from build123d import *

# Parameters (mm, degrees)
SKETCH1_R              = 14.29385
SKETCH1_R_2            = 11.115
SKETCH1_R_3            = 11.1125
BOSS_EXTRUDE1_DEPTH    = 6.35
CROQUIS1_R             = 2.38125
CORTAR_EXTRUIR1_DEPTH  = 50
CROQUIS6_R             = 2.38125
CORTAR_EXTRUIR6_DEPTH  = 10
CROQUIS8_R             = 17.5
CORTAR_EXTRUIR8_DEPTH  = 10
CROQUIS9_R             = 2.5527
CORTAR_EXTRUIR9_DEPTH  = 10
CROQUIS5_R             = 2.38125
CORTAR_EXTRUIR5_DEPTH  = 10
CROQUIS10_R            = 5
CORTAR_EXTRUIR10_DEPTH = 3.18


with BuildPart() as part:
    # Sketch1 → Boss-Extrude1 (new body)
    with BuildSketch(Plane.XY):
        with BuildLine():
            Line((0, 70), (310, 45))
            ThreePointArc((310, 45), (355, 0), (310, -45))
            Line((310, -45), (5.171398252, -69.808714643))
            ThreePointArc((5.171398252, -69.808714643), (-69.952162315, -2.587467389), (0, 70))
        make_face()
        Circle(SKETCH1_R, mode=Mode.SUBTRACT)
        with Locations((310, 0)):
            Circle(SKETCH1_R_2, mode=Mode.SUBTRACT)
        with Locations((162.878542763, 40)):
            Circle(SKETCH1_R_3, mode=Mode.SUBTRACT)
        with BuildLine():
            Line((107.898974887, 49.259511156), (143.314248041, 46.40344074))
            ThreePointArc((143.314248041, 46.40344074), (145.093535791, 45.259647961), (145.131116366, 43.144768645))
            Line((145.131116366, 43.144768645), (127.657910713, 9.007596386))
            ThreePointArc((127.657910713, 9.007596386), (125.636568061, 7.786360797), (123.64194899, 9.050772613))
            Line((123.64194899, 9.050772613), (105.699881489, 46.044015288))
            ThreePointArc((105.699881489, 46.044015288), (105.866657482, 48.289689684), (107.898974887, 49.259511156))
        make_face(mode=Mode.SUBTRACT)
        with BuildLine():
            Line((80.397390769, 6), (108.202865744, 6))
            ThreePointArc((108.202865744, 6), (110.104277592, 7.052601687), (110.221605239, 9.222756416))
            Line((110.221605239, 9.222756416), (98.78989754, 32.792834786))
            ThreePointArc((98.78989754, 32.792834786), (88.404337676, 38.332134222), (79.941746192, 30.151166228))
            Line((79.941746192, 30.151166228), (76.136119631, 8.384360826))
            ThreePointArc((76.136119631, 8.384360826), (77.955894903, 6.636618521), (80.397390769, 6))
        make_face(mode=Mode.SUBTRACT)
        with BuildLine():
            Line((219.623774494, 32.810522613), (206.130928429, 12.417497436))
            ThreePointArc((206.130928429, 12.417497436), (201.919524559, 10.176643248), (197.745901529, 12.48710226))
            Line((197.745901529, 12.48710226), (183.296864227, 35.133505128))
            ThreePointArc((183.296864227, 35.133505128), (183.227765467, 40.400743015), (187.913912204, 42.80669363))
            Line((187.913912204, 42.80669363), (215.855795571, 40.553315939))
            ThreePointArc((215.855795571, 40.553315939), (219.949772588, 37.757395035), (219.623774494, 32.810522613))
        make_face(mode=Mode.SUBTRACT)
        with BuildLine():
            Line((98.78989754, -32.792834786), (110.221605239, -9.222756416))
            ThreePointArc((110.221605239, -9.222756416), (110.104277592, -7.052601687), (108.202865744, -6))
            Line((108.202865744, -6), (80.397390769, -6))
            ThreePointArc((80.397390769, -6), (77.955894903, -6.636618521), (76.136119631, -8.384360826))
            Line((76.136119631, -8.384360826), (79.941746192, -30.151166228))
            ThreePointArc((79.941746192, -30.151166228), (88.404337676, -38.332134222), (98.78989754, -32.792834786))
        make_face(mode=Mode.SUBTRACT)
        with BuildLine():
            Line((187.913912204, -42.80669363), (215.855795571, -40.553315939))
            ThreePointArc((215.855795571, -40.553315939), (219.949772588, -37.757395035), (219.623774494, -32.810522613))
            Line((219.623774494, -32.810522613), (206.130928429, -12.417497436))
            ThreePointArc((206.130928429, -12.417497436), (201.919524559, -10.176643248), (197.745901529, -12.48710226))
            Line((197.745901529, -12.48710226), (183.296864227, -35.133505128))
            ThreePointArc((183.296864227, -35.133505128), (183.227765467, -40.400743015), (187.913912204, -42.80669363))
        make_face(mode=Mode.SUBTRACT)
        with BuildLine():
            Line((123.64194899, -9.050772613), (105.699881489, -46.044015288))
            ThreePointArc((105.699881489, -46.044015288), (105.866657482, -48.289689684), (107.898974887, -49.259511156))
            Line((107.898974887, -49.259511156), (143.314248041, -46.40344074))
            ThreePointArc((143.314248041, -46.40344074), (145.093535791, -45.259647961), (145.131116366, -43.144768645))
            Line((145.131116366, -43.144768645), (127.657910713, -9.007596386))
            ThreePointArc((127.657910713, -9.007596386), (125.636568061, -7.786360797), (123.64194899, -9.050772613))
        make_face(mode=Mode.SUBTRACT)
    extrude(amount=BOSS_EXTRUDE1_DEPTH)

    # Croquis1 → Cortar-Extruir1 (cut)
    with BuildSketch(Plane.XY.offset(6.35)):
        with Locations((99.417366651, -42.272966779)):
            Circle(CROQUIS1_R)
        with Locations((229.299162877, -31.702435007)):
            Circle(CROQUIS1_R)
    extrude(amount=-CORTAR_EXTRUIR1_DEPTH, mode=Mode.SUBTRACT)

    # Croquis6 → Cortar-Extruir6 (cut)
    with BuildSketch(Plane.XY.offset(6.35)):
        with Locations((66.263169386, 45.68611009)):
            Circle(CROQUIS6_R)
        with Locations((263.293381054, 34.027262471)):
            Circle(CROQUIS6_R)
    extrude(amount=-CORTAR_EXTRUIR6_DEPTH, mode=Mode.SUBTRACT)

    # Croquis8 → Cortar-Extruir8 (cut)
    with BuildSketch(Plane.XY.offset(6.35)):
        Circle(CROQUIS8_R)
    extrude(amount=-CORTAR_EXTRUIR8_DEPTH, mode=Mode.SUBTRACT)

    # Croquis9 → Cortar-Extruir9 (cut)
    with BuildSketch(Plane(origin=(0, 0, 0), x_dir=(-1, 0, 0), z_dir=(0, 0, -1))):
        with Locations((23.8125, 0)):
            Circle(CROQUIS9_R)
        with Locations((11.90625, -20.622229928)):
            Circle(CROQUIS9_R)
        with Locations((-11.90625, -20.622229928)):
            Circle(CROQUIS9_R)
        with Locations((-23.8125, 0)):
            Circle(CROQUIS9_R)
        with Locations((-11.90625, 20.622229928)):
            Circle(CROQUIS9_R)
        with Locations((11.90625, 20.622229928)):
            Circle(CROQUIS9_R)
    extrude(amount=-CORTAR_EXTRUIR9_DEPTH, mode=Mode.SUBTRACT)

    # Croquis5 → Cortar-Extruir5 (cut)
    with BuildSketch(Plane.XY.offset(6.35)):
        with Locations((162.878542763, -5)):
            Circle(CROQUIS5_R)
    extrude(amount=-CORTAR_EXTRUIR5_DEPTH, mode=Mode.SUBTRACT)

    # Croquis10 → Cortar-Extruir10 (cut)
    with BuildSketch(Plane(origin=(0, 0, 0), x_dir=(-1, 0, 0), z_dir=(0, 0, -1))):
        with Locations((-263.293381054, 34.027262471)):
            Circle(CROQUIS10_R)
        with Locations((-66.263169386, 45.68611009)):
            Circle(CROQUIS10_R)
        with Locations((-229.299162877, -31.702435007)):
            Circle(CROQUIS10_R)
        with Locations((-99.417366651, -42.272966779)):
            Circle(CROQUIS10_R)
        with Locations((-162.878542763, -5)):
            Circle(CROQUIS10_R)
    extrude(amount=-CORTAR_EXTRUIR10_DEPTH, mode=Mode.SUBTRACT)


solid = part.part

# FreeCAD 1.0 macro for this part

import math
import FreeCAD as App
import Part
import Sketcher
from FreeCAD import Vector
Q = App.Units.Quantity

doc = App.newDocument("Part")
body = doc.addObject("PartDesign::Body", "Body")

sketch1 = body.newObject("Sketcher::SketchObject", "Sketch")
sketch1.AttachmentSupport = (doc.getObject("XY_Plane"), [""])
sketch1.MapMode = "FlatFace"
sketch1.addGeometry([
    Part.LineSegment(Vector(310, 45, 0), Vector(0, 70, 0)),
    Part.ArcOfCircle(Part.Circle(Vector(0, 0, 0), Vector(0, 0, 1), 70), math.radians(90), math.radians(274)),
    Part.LineSegment(Vector(5.2, -69.8, 0), Vector(310, -45, 0)),
    Part.ArcOfCircle(Part.Circle(Vector(310, 0, 0), Vector(0, 0, 1), 45), math.radians(-90), math.radians(90)),
    Part.ArcOfCircle(Part.Circle(Vector(187.5, -37.8, 0), Vector(0, 0, 1), 5), math.radians(147), math.radians(275)),
    Part.LineSegment(Vector(183.3, -35.1, 0), Vector(197.7, -12.5, 0)),
    Part.ArcOfCircle(Part.Circle(Vector(202, -15.2, 0), Vector(0, 0, 1), 5), math.radians(33), math.radians(147)),
    Part.LineSegment(Vector(206.1, -12.4, 0), Vector(219.6, -32.8, 0)),
    Part.ArcOfCircle(Part.Circle(Vector(215.5, -35.6, 0), Vector(0, 0, 1), 5), math.radians(-85), math.radians(33)),
    Part.LineSegment(Vector(215.9, -40.6, 0), Vector(187.9, -42.8, 0)),
    Part.Circle(Vector(310, 0, 0), Vector(0, 0, 1), 11.1),
    Part.ArcOfCircle(Part.Circle(Vector(125.7, -10, 0), Vector(0, 0, 1), 2.2), math.radians(27), math.radians(154)),
    Part.LineSegment(Vector(127.7, -9, 0), Vector(145.1, -43.1, 0)),
    Part.ArcOfCircle(Part.Circle(Vector(143.1, -44.2, 0), Vector(0, 0, 1), 2.2), math.radians(-85), math.radians(27)),
    Part.LineSegment(Vector(143.3, -46.4, 0), Vector(107.9, -49.3, 0)),
    Part.ArcOfCircle(Part.Circle(Vector(107.7, -47, 0), Vector(0, 0, 1), 2.2), math.radians(154), math.radians(275)),
    Part.LineSegment(Vector(105.7, -46, 0), Vector(123.6, -9.1, 0)),
    Part.ArcOfCircle(Part.Circle(Vector(89.8, -28.4, 0), Vector(0, 0, 1), 10), math.radians(-170), math.radians(-26)),
    Part.LineSegment(Vector(79.9, -30.2, 0), Vector(76.1, -8.4, 0)),
    Part.ArcOfCircle(Part.Circle(Vector(80.4, -11, 0), Vector(0, 0, 1), 5), math.radians(90), math.radians(148)),
    Part.LineSegment(Vector(80.4, -6, 0), Vector(108.2, -6, 0)),
    Part.ArcOfCircle(Part.Circle(Vector(108.2, -8.2, 0), Vector(0, 0, 1), 2.2), math.radians(-26), math.radians(90)),
    Part.LineSegment(Vector(110.2, -9.2, 0), Vector(98.8, -32.8, 0)),
    Part.Circle(Vector(0, 0, 0), Vector(0, 0, 1), 14.3),
    Part.LineSegment(Vector(219.6, 32.8, 0), Vector(206.1, 12.4, 0)),
    Part.ArcOfCircle(Part.Circle(Vector(202, 15.2, 0), Vector(0, 0, 1), 5), math.radians(-147), math.radians(-33)),
    Part.LineSegment(Vector(197.7, 12.5, 0), Vector(183.3, 35.1, 0)),
    Part.ArcOfCircle(Part.Circle(Vector(187.5, 37.8, 0), Vector(0, 0, 1), 5), math.radians(85), math.radians(213)),
    Part.LineSegment(Vector(187.9, 42.8, 0), Vector(215.9, 40.6, 0)),
    Part.ArcOfCircle(Part.Circle(Vector(215.5, 35.6, 0), Vector(0, 0, 1), 5), math.radians(-33), math.radians(85)),
    Part.Circle(Vector(162.9, 40, 0), Vector(0, 0, 1), 11.1),
    Part.ArcOfCircle(Part.Circle(Vector(80.4, 11, 0), Vector(0, 0, 1), 5), math.radians(-148), math.radians(-90)),
    Part.LineSegment(Vector(76.1, 8.4, 0), Vector(79.9, 30.2, 0)),
    Part.ArcOfCircle(Part.Circle(Vector(89.8, 28.4, 0), Vector(0, 0, 1), 10), math.radians(26), math.radians(170)),
    Part.LineSegment(Vector(98.8, 32.8, 0), Vector(110.2, 9.2, 0)),
    Part.ArcOfCircle(Part.Circle(Vector(108.2, 8.2, 0), Vector(0, 0, 1), 2.2), math.radians(-90), math.radians(26)),
    Part.LineSegment(Vector(108.2, 6, 0), Vector(80.4, 6, 0)),
    Part.LineSegment(Vector(107.9, 49.3, 0), Vector(143.3, 46.4, 0)),
    Part.ArcOfCircle(Part.Circle(Vector(143.1, 44.2, 0), Vector(0, 0, 1), 2.2), math.radians(-27), math.radians(85)),
    Part.LineSegment(Vector(145.1, 43.1, 0), Vector(127.7, 9, 0)),
    Part.ArcOfCircle(Part.Circle(Vector(125.7, 10, 0), Vector(0, 0, 1), 2.2), math.radians(-154), math.radians(-27)),
    Part.LineSegment(Vector(123.6, 9.1, 0), Vector(105.7, 46, 0)),
    Part.ArcOfCircle(Part.Circle(Vector(107.7, 47, 0), Vector(0, 0, 1), 2.2), math.radians(85), math.radians(206)),
], False)
sketch1.addConstraint([
    Sketcher.Constraint("Coincident", 0, 2, 1, 1),
    Sketcher.Constraint("Coincident", 1, 2, 2, 1),
    Sketcher.Constraint("Coincident", 2, 2, 3, 1),
    Sketcher.Constraint("Coincident", 3, 2, 0, 1),
    Sketcher.Constraint("Tangent", 4, 1, 5, 1),
    Sketcher.Constraint("Tangent", 5, 2, 6, 2),
    Sketcher.Constraint("Tangent", 6, 1, 7, 1),
    Sketcher.Constraint("Tangent", 7, 2, 8, 2),
    Sketcher.Constraint("Tangent", 8, 1, 9, 1),
    Sketcher.Constraint("Tangent", 9, 2, 4, 2),
    Sketcher.Constraint("Tangent", 11, 1, 12, 1),
    Sketcher.Constraint("Tangent", 12, 2, 13, 2),
    Sketcher.Constraint("Tangent", 13, 1, 14, 1),
    Sketcher.Constraint("Tangent", 14, 2, 15, 2),
    Sketcher.Constraint("Tangent", 15, 1, 16, 1),
    Sketcher.Constraint("Tangent", 16, 2, 11, 2),
    Sketcher.Constraint("Tangent", 17, 1, 18, 1),
    Sketcher.Constraint("Coincident", 18, 2, 19, 2),
    Sketcher.Constraint("Tangent", 19, 1, 20, 1),
    Sketcher.Constraint("Tangent", 20, 2, 21, 2),
    Sketcher.Constraint("Tangent", 21, 1, 22, 1),
    Sketcher.Constraint("Tangent", 22, 2, 17, 2),
    Sketcher.Constraint("Tangent", 24, 2, 25, 2),
    Sketcher.Constraint("Tangent", 25, 1, 26, 1),
    Sketcher.Constraint("Tangent", 26, 2, 27, 2),
    Sketcher.Constraint("Tangent", 27, 1, 28, 1),
    Sketcher.Constraint("Tangent", 28, 2, 29, 2),
    Sketcher.Constraint("Tangent", 29, 1, 24, 1),
    Sketcher.Constraint("Coincident", 31, 1, 32, 1),
    Sketcher.Constraint("Tangent", 32, 2, 33, 2),
    Sketcher.Constraint("Tangent", 33, 1, 34, 1),
    Sketcher.Constraint("Tangent", 34, 2, 35, 2),
    Sketcher.Constraint("Tangent", 35, 1, 36, 1),
    Sketcher.Constraint("Tangent", 36, 2, 31, 2),
    Sketcher.Constraint("Tangent", 37, 2, 38, 2),
    Sketcher.Constraint("Tangent", 38, 1, 39, 1),
    Sketcher.Constraint("Tangent", 39, 2, 40, 2),
    Sketcher.Constraint("Tangent", 40, 1, 41, 1),
    Sketcher.Constraint("Tangent", 41, 2, 42, 2),
    Sketcher.Constraint("Tangent", 42, 1, 37, 1),
    Sketcher.Constraint("Horizontal", 20),
    Sketcher.Constraint("Horizontal", 36),
    Sketcher.Constraint("Coincident", 1, 3, -1, 1),
    Sketcher.Constraint("Coincident", 23, 3, -1, 1),
    Sketcher.Constraint("Coincident", 10, 3, 3, 3),
    Sketcher.Constraint("Equal", 4, 6),
    Sketcher.Constraint("Equal", 6, 8),
    Sketcher.Constraint("Equal", 11, 13),
    Sketcher.Constraint("Equal", 13, 15),
    Sketcher.Constraint("Equal", 8, 19),
    Sketcher.Constraint("Equal", 15, 21),
    Sketcher.Constraint("Equal", 19, 25),
    Sketcher.Constraint("Equal", 25, 27),
    Sketcher.Constraint("Equal", 27, 29),
    Sketcher.Constraint("Equal", 29, 31),
    Sketcher.Constraint("Equal", 17, 33),
    Sketcher.Constraint("Equal", 21, 35),
    Sketcher.Constraint("Equal", 35, 38),
    Sketcher.Constraint("Equal", 38, 40),
    Sketcher.Constraint("Equal", 40, 42),
    Sketcher.Constraint("Symmetric", 6, 3, 25, 3, -1),
    Sketcher.Constraint("Symmetric", 4, 3, 27, 3, -1),
    Sketcher.Constraint("Symmetric", 8, 3, 29, 3, -1),
    Sketcher.Constraint("Symmetric", 19, 3, 31, 3, -1),
    Sketcher.Constraint("Symmetric", 17, 3, 33, 3, -1),
    Sketcher.Constraint("Symmetric", 13, 3, 38, 3, -1),
    Sketcher.Constraint("Symmetric", 11, 3, 40, 3, -1),
    Sketcher.Constraint("Symmetric", 15, 3, 42, 3, -1),
    Sketcher.Constraint("Symmetric", 2, 2, 3, 2, -1),
    Sketcher.Constraint("PointOnObject", 0, 2, -2),
    Sketcher.Constraint("Parallel", 9, 14),
    Sketcher.Constraint("Parallel", 16, 22),
    Sketcher.Constraint("Parallel", 0, 28),
    Sketcher.Constraint("Parallel", 34, 41),
    Sketcher.Constraint("Vertical", 10, 3, 2, 2),
    Sketcher.Constraint("Vertical", 18, 2, 31, 1),
    Sketcher.Constraint("Radius", 1, Q("70 mm")),
    Sketcher.Constraint("Radius", 3, Q("45 mm")),
    Sketcher.Constraint("Radius", 4, Q("5 mm")),
    Sketcher.Constraint("Radius", 17, Q("10 mm")),
    Sketcher.Constraint("Diameter", 10, Q("22.23 mm")),
    Sketcher.Constraint("Diameter", 30, Q("22.225 mm")),
    Sketcher.Constraint("DistanceX", -1, 1, 3, 3, Q("310 mm")),
    Sketcher.Constraint("DistanceY", 19, 3, -1, 1, Q("11 mm")),
    Sketcher.Constraint("DistanceY", -1, 1, 30, 3, Q("40 mm")),
    Sketcher.Constraint("Diameter", 23, Q("28.5877 mm")),
    Sketcher.Constraint("Radius", 11, Q("2.243649 mm")),
    Sketcher.Constraint("Distance", 9, Q("28.032598 mm")),
    Sketcher.Constraint("DistanceX", -1, 1, 1, 2, Q("5.171398 mm")),
    Sketcher.Constraint("DistanceX", -1, 1, 5, 2, Q("197.745902 mm")),
    Sketcher.Constraint("Distance", 5, Q("26.863251 mm")),
    Sketcher.Constraint("Distance", 14, Q("35.530251 mm")),
    Sketcher.Constraint("Distance", 16, Q("41.114691 mm")),
    Sketcher.Constraint("Distance", 18, Q("22.096982 mm")),
    Sketcher.Constraint("Distance", 22, Q("26.19604 mm")),
    Sketcher.Constraint("DistanceX", 20, 1, 20, 2, Q("27.805475 mm")),
    Sketcher.Constraint("DistanceX", -1, 1, 4, 3, Q("187.511991 mm")),
    Sketcher.Constraint("DistanceY", 6, 3, -1, 1, Q("15.176471 mm")),
    Sketcher.Constraint("DistanceX", -1, 1, 11, 3, Q("125.660688 mm")),
    Sketcher.Constraint("DistanceY", 11, 3, -1, 1, Q("10.02988 mm")),
    Sketcher.Constraint("DistanceX", -1, 1, 15, 3, Q("107.718621 mm")),
    Sketcher.Constraint("DistanceX", -1, 1, 19, 3, Q("80.397391 mm")),
    Sketcher.Constraint("DistanceX", -1, 1, 30, 3, Q("162.878543 mm")),
])
pad1 = body.newObject("PartDesign::Pad", "Pad")
pad1.Profile = sketch1
pad1.Length = 6.35

sketch2 = body.newObject("Sketcher::SketchObject", "Sketch001")
sketch2.AttachmentSupport = (doc.getObject("XY_Plane"), [""])
sketch2.MapMode = "FlatFace"
sketch2.AttachmentOffset = App.Placement(Vector(0, 0, 6.35), App.Rotation())
sketch2.addGeometry([
    Part.Circle(Vector(99.4, -42.3, 0), Vector(0, 0, 1), 2.4),
    Part.Circle(Vector(229.3, -31.7, 0), Vector(0, 0, 1), 2.4),
], False)
sketch2.addConstraint([
    Sketcher.Constraint("Equal", 0, 1),
    Sketcher.Constraint("Diameter", 0, Q("4.7625 mm")),
    Sketcher.Constraint("DistanceY", 0, 3, 1, 3, Q("10.570532 mm")),
    Sketcher.Constraint("DistanceX", -1, 1, 0, 3, Q("99.417367 mm")),
    Sketcher.Constraint("DistanceY", 0, 3, -1, 1, Q("42.272967 mm")),
    Sketcher.Constraint("DistanceX", -1, 1, 1, 3, Q("229.299163 mm")),
])
pocket1 = body.newObject("PartDesign::Pocket", "Pocket")
pocket1.Profile = sketch2
pocket1.Length = 50

sketch3 = body.newObject("Sketcher::SketchObject", "Sketch002")
sketch3.AttachmentSupport = (doc.getObject("XY_Plane"), [""])
sketch3.MapMode = "FlatFace"
sketch3.AttachmentOffset = App.Placement(Vector(0, 0, 6.35), App.Rotation())
sketch3.addGeometry([
    Part.Circle(Vector(66.3, 45.7, 0), Vector(0, 0, 1), 2.4),
    Part.Circle(Vector(263.3, 34, 0), Vector(0, 0, 1), 2.4),
], False)
sketch3.addConstraint([
    Sketcher.Constraint("Equal", 0, 1),
    Sketcher.Constraint("Diameter", 0, Q("4.7625 mm")),
    Sketcher.Constraint("DistanceX", -1, 1, 0, 3, Q("66.263169 mm")),
    Sketcher.Constraint("DistanceY", -1, 1, 0, 3, Q("45.68611 mm")),
    Sketcher.Constraint("DistanceX", -1, 1, 1, 3, Q("263.293381 mm")),
    Sketcher.Constraint("DistanceY", -1, 1, 1, 3, Q("34.027262 mm")),
])
pocket2 = body.newObject("PartDesign::Pocket", "Pocket001")
pocket2.Profile = sketch3
pocket2.Length = 10

sketch4 = body.newObject("Sketcher::SketchObject", "Sketch003")
sketch4.AttachmentSupport = (doc.getObject("XY_Plane"), [""])
sketch4.MapMode = "FlatFace"
sketch4.AttachmentOffset = App.Placement(Vector(0, 0, 6.35), App.Rotation())
sketch4.addGeometry(Part.Circle(Vector(0, 0, 0), Vector(0, 0, 1), 18), False)
sketch4.addConstraint([
    Sketcher.Constraint("Coincident", 0, 3, -1, 1),
    Sketcher.Constraint("Diameter", 0, Q("35 mm")),
])
pocket3 = body.newObject("PartDesign::Pocket", "Pocket002")
pocket3.Profile = sketch4
pocket3.Length = 10

sketch5 = body.newObject("Sketcher::SketchObject", "Sketch004")
sketch5.AttachmentSupport = (doc.getObject("XY_Plane"), [""])
sketch5.MapMode = "FlatFace"
sketch5.addGeometry([
    Part.Circle(Vector(-23.8, 0, 0), Vector(0, 0, 1), 2.6),
    Part.Circle(Vector(-11.9, -20.6, 0), Vector(0, 0, 1), 2.6),
    Part.Circle(Vector(11.9, -20.6, 0), Vector(0, 0, 1), 2.6),
    Part.Circle(Vector(23.8, 0, 0), Vector(0, 0, 1), 2.6),
    Part.Circle(Vector(11.9, 20.6, 0), Vector(0, 0, 1), 2.6),
    Part.Circle(Vector(-11.9, 20.6, 0), Vector(0, 0, 1), 2.6),
], False)
sketch5.addConstraint([
    Sketcher.Constraint("Equal", 0, 1),
    Sketcher.Constraint("Equal", 1, 2),
    Sketcher.Constraint("Equal", 2, 3),
    Sketcher.Constraint("Equal", 3, 4),
    Sketcher.Constraint("Equal", 4, 5),
    Sketcher.Constraint("Symmetric", 0, 3, 3, 3, -1, 1),
    Sketcher.Constraint("Symmetric", 1, 3, 4, 3, -1, 1),
    Sketcher.Constraint("Symmetric", 2, 3, 5, 3, -1, 1),
    Sketcher.Constraint("Symmetric", 1, 3, 2, 3, -2),
    Sketcher.Constraint("PointOnObject", 0, 3, -1),
    Sketcher.Constraint("Diameter", 0, Q("5.1054 mm")),
    Sketcher.Constraint("DistanceX", 0, 3, 3, 3, Q("47.625 mm")),
    Sketcher.Constraint("DistanceX", 1, 3, 2, 3, Q("23.8125 mm")),
    Sketcher.Constraint("DistanceY", 1, 3, -1, 1, Q("20.62223 mm")),
])
pocket4 = body.newObject("PartDesign::Pocket", "Pocket003")
pocket4.Profile = sketch5
pocket4.Length = 10
pocket4.Reversed = True

sketch6 = body.newObject("Sketcher::SketchObject", "Sketch005")
sketch6.AttachmentSupport = (doc.getObject("XY_Plane"), [""])
sketch6.MapMode = "FlatFace"
sketch6.AttachmentOffset = App.Placement(Vector(0, 0, 6.35), App.Rotation())
sketch6.addGeometry(Part.Circle(Vector(162.9, -5, 0), Vector(0, 0, 1), 2.4), False)
sketch6.addConstraint([
    Sketcher.Constraint("DistanceY", 0, 3, -1, 1, Q("5 mm")),
    Sketcher.Constraint("Diameter", 0, Q("4.7625 mm")),
    Sketcher.Constraint("DistanceX", -1, 1, 0, 3, Q("162.878543 mm")),
])
pocket5 = body.newObject("PartDesign::Pocket", "Pocket004")
pocket5.Profile = sketch6
pocket5.Length = 10

sketch7 = body.newObject("Sketcher::SketchObject", "Sketch006")
sketch7.AttachmentSupport = (doc.getObject("XY_Plane"), [""])
sketch7.MapMode = "FlatFace"
sketch7.addGeometry([
    Part.Circle(Vector(263, 34, 0), Vector(0, 0, 1), 5),
    Part.Circle(Vector(66, 46, 0), Vector(0, 0, 1), 5),
    Part.Circle(Vector(229, -32, 0), Vector(0, 0, 1), 5),
    Part.Circle(Vector(99, -42, 0), Vector(0, 0, 1), 5),
    Part.Circle(Vector(163, -5, 0), Vector(0, 0, 1), 5),
], False)
sketch7.addConstraint([
    Sketcher.Constraint("Equal", 0, 1),
    Sketcher.Constraint("Equal", 1, 2),
    Sketcher.Constraint("Equal", 2, 3),
    Sketcher.Constraint("Equal", 3, 4),
    Sketcher.Constraint("Diameter", 0, Q("10 mm")),
    Sketcher.Constraint("DistanceY", 4, 3, -1, 1, Q("5 mm")),
    Sketcher.Constraint("DistanceX", -1, 1, 0, 3, Q("263.293381 mm")),
    Sketcher.Constraint("DistanceX", -1, 1, 1, 3, Q("66.263169 mm")),
    Sketcher.Constraint("DistanceY", -1, 1, 1, 3, Q("45.68611 mm")),
    Sketcher.Constraint("DistanceX", 2, 3, 0, 3, Q("33.994218 mm")),
    Sketcher.Constraint("DistanceY", 3, 3, 2, 3, Q("10.570532 mm")),
    Sketcher.Constraint("DistanceY", 3, 3, 0, 3, Q("76.300229 mm")),
    Sketcher.Constraint("DistanceX", 4, 3, 2, 3, Q("66.42062 mm")),
    Sketcher.Constraint("DistanceY", -1, 1, 0, 3, Q("34.027262 mm")),
    Sketcher.Constraint("DistanceX", -1, 1, 3, 3, Q("99.417367 mm")),
])
pocket6 = body.newObject("PartDesign::Pocket", "Pocket005")
pocket6.Profile = sketch7
pocket6.Length = 3.18
pocket6.Reversed = True

doc.recompute()
